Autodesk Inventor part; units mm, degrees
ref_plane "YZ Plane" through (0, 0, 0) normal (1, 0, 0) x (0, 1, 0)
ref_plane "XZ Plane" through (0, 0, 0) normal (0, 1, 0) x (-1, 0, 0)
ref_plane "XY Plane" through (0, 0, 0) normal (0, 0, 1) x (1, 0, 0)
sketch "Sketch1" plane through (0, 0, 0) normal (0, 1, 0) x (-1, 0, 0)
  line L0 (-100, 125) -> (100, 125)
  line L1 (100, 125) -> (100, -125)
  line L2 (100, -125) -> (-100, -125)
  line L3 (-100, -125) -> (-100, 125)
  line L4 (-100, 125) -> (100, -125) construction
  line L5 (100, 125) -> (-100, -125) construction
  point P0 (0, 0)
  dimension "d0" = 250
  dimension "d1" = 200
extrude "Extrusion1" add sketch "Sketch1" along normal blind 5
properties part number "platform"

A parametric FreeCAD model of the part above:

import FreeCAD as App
import Part
import Sketcher

V = App.Vector
Q = App.Units.Quantity


def add_polygon(sketch, points):
    """Adds a closed chain of lines whose ends are joined by coincident constraints."""
    first, n = sketch.GeometryCount, len(points)
    for a, b in zip(points, points[1:] + points[:1]):
        sketch.addGeometry(Part.LineSegment(App.Vector(*a, 0), App.Vector(*b, 0)), False)
    for i in range(n):
        sketch.addConstraint(Sketcher.Constraint("Coincident", first + i, 2, first + (i + 1) % n, 1))

doc = App.newDocument("Part")
body = doc.addObject("PartDesign::Body", "Body")

# Sketch on XZ plane
sketch1 = body.newObject("Sketcher::SketchObject", "Sketch")
sketch1.AttachmentSupport = (doc.getObject("XZ_Plane"), [""])
sketch1.MapMode = "FlatFace"
add_polygon(sketch1, [(-100, 125), (100, 125), (100, -125), (-100, -125)])  # lines 0-3
sketch1.addConstraint([
    Sketcher.Constraint("Horizontal", 0),
    Sketcher.Constraint("Vertical", 1),
    Sketcher.Constraint("Horizontal", 2),
    Sketcher.Constraint("Vertical", 3),
    Sketcher.Constraint("Symmetric", 0, 2, 2, 2, -1, 1),
    Sketcher.Constraint("DistanceX", 0, 1, 0, 2, Q("200 mm")),
    Sketcher.Constraint("DistanceY", 1, 2, 1, 1, Q("250 mm")),
])
pad1 = body.newObject("PartDesign::Pad", "Pad")
pad1.Profile = sketch1
pad1.Length = 5
pad1.Reversed = True

doc.recompute()
